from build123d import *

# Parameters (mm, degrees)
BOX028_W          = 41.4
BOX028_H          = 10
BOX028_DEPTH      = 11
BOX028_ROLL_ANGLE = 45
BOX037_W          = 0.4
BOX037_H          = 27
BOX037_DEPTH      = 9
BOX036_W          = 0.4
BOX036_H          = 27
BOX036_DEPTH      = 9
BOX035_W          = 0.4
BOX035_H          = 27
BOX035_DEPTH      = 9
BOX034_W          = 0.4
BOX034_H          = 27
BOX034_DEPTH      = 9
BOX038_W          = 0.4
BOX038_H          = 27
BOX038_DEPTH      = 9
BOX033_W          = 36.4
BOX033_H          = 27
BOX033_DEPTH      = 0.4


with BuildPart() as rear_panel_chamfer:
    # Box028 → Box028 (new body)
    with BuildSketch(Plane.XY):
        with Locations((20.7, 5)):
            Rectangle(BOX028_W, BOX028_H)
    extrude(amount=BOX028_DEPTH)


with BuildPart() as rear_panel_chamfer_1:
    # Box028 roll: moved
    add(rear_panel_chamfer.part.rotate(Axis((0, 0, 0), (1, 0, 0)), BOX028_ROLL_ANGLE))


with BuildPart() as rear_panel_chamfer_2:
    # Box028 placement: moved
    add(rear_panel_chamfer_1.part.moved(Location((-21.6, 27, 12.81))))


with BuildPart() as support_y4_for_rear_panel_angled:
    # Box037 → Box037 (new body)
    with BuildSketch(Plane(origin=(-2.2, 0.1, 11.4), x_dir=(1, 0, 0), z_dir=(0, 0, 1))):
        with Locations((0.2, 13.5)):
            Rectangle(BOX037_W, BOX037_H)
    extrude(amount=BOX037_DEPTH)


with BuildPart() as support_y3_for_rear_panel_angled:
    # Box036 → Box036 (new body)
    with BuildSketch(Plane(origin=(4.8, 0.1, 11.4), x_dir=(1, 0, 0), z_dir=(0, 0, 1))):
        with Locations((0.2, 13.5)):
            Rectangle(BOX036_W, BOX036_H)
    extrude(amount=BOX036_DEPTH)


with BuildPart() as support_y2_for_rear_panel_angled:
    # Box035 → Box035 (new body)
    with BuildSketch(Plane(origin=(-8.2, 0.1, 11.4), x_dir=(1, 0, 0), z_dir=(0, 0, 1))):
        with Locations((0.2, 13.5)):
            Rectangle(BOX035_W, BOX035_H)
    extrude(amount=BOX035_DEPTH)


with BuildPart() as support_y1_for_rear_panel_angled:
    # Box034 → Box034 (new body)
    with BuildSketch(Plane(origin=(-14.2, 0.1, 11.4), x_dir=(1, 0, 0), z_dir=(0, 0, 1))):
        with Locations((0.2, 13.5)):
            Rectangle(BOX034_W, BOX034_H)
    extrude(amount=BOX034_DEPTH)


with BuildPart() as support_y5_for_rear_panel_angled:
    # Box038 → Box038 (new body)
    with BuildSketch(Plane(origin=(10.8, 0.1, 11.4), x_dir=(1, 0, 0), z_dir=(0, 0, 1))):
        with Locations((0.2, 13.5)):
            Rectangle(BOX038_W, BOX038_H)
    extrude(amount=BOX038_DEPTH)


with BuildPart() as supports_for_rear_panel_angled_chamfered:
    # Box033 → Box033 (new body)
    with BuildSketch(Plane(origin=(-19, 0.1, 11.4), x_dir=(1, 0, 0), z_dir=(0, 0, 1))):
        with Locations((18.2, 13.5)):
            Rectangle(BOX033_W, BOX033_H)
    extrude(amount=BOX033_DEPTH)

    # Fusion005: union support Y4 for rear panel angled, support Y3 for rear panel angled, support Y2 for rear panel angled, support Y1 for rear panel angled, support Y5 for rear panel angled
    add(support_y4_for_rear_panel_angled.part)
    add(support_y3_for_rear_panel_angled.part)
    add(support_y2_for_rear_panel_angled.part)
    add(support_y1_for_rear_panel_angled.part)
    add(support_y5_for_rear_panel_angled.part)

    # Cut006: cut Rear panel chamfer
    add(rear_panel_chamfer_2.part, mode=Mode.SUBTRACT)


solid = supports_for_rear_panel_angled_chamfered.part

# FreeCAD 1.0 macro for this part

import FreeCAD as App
import Part
import Sketcher

V = App.Vector


def add_polygon(sketch, points):
    """Adds a closed chain of lines whose ends are joined by coincident constraints."""
    first, n = sketch.GeometryCount, len(points)
    for a, b in zip(points, points[1:] + points[:1]):
        sketch.addGeometry(Part.LineSegment(App.Vector(*a, 0), App.Vector(*b, 0)), False)
    for i in range(n):
        sketch.addConstraint(Sketcher.Constraint("Coincident", first + i, 2, first + (i + 1) % n, 1))

doc = App.newDocument("Part")
params = doc.addObject("Spreadsheet::Sheet", "Params")
for row, (alias, value) in enumerate([
    ("sketch1_height", "10 mm"),
    ("sketch1_width", "41.4 mm"),
    ("pad1_length", "11 mm"),
    ("sketch2_height", "27 mm"),
    ("sketch2_width", "0.4 mm"),
    ("pad2_length", "9 mm"),
    ("sketch3_height", "27 mm"),
    ("sketch3_width", "0.4 mm"),
    ("pad3_length", "9 mm"),
    ("sketch4_height", "27 mm"),
    ("sketch4_width", "0.4 mm"),
    ("pad4_length", "9 mm"),
    ("sketch5_height", "27 mm"),
    ("sketch5_width", "0.4 mm"),
    ("pad5_length", "9 mm"),
    ("sketch6_height", "27 mm"),
    ("sketch6_width", "0.4 mm"),
    ("pad6_length", "9 mm"),
    ("sketch7_height", "27 mm"),
    ("sketch7_width", "36.4 mm"),
    ("pad7_length", "0.4 mm"),
], start=1):
    params.set(f"A{row}", alias)
    params.set(f"B{row}", "=" + value)
    params.setAlias(f"B{row}", alias)

body = doc.addObject("PartDesign::Body", "Body")

sketch1 = doc.addObject("Sketcher::SketchObject", "Sketch")
body.addObject(sketch1)
sketch1.AttachmentSupport = (doc.XY_Plane, [""])
sketch1.MapMode = "FlatFace"
add_polygon(sketch1, [(0, 10), (0, 0), (41, 0), (41, 10)])
sketch1.addConstraint([
    Sketcher.Constraint("Vertical", 0),
    Sketcher.Constraint("Horizontal", 1),
    Sketcher.Constraint("Vertical", 2),
    Sketcher.Constraint("Horizontal", 3),
    Sketcher.Constraint("Coincident", 0, 2, -1, 1),
    Sketcher.Constraint("DistanceY", 0, 2, 0, 1, 10.0),
    Sketcher.Constraint("DistanceX", 1, 1, 1, 2, 41.4),
])
sketch1.setExpression("Constraints[9]", "Params.sketch1_height")
sketch1.setExpression("Constraints[10]", "Params.sketch1_width")
pad1 = doc.addObject("PartDesign::Pad", "Pad")
body.addObject(pad1)
pad1.Profile = sketch1
pad1.setExpression("Length", "Params.pad1_length")
body2 = doc.addObject("PartDesign::Body", "Body001")
doc.recompute()

body.Placement = App.Placement(V(0, 0, 0), App.Rotation(V(1, 0, 0), 45))
boolean = doc.addObject("PartDesign::Boolean", "Boolean")
body2.addObject(boolean)
boolean.Type = "Fuse"
boolean.addObjects([body])
body3 = doc.addObject("PartDesign::Body", "Body002")
doc.recompute()

body2.Placement = App.Placement(V(-21.6, 27, 12.81), App.Rotation(V(0, 0, 1), 0))
boolean2 = doc.addObject("PartDesign::Boolean", "Boolean001")
body3.addObject(boolean2)
boolean2.Type = "Fuse"
boolean2.addObjects([body2])
body4 = doc.addObject("PartDesign::Body", "Body003")

sketch2 = doc.addObject("Sketcher::SketchObject", "Sketch001")
body4.addObject(sketch2)
sketch2.AttachmentSupport = (doc.getObject("XY_Plane003"), [""])
sketch2.MapMode = "FlatFace"
sketch2.AttachmentOffset = App.Placement(V(0, 0, 11.4), App.Rotation())
add_polygon(sketch2, [(-2.2, 27.1), (-2.2, 0.1), (-1.8, 0.1), (-1.8, 27.1)])
sketch2.addConstraint([
    Sketcher.Constraint("Vertical", 0),
    Sketcher.Constraint("Horizontal", 1),
    Sketcher.Constraint("Vertical", 2),
    Sketcher.Constraint("Horizontal", 3),
    Sketcher.Constraint("DistanceY", 0, 2, 0, 1, 27.0),
    Sketcher.Constraint("DistanceX", 1, 1, 1, 2, 0.4),
    Sketcher.Constraint("DistanceX", 0, 2, -1, 1, 2.2),
    Sketcher.Constraint("DistanceY", -1, 1, 0, 2, 0.1),
])
sketch2.setExpression("Constraints[8]", "Params.sketch2_height")
sketch2.setExpression("Constraints[9]", "Params.sketch2_width")
pad2 = doc.addObject("PartDesign::Pad", "Pad001")
body4.addObject(pad2)
pad2.Profile = sketch2
pad2.setExpression("Length", "Params.pad2_length")
body5 = doc.addObject("PartDesign::Body", "Body004")

sketch3 = doc.addObject("Sketcher::SketchObject", "Sketch002")
body5.addObject(sketch3)
sketch3.AttachmentSupport = (doc.getObject("XY_Plane004"), [""])
sketch3.MapMode = "FlatFace"
sketch3.AttachmentOffset = App.Placement(V(0, 0, 11.4), App.Rotation())
add_polygon(sketch3, [(4.8, 27.1), (4.8, 0.1), (5.2, 0.1), (5.2, 27.1)])
sketch3.addConstraint([
    Sketcher.Constraint("Vertical", 0),
    Sketcher.Constraint("Horizontal", 1),
    Sketcher.Constraint("Vertical", 2),
    Sketcher.Constraint("Horizontal", 3),
    Sketcher.Constraint("DistanceY", 0, 2, 0, 1, 27.0),
    Sketcher.Constraint("DistanceX", 1, 1, 1, 2, 0.4),
    Sketcher.Constraint("DistanceX", -1, 1, 0, 2, 4.8),
    Sketcher.Constraint("DistanceY", -1, 1, 0, 2, 0.1),
])
sketch3.setExpression("Constraints[8]", "Params.sketch3_height")
sketch3.setExpression("Constraints[9]", "Params.sketch3_width")
pad3 = doc.addObject("PartDesign::Pad", "Pad002")
body5.addObject(pad3)
pad3.Profile = sketch3
pad3.setExpression("Length", "Params.pad3_length")
body6 = doc.addObject("PartDesign::Body", "Body005")

sketch4 = doc.addObject("Sketcher::SketchObject", "Sketch003")
body6.addObject(sketch4)
sketch4.AttachmentSupport = (doc.getObject("XY_Plane005"), [""])
sketch4.MapMode = "FlatFace"
sketch4.AttachmentOffset = App.Placement(V(0, 0, 11.4), App.Rotation())
add_polygon(sketch4, [(-8.2, 27.1), (-8.2, 0.1), (-7.8, 0.1), (-7.8, 27.1)])
sketch4.addConstraint([
    Sketcher.Constraint("Vertical", 0),
    Sketcher.Constraint("Horizontal", 1),
    Sketcher.Constraint("Vertical", 2),
    Sketcher.Constraint("Horizontal", 3),
    Sketcher.Constraint("DistanceY", 0, 2, 0, 1, 27.0),
    Sketcher.Constraint("DistanceX", 1, 1, 1, 2, 0.4),
    Sketcher.Constraint("DistanceX", 0, 2, -1, 1, 8.2),
    Sketcher.Constraint("DistanceY", -1, 1, 0, 2, 0.1),
])
sketch4.setExpression("Constraints[8]", "Params.sketch4_height")
sketch4.setExpression("Constraints[9]", "Params.sketch4_width")
pad4 = doc.addObject("PartDesign::Pad", "Pad003")
body6.addObject(pad4)
pad4.Profile = sketch4
pad4.setExpression("Length", "Params.pad4_length")
body7 = doc.addObject("PartDesign::Body", "Body006")

sketch5 = doc.addObject("Sketcher::SketchObject", "Sketch004")
body7.addObject(sketch5)
sketch5.AttachmentSupport = (doc.getObject("XY_Plane006"), [""])
sketch5.MapMode = "FlatFace"
sketch5.AttachmentOffset = App.Placement(V(0, 0, 11.4), App.Rotation())
add_polygon(sketch5, [(-14.2, 27.1), (-14.2, 0.1), (-13.8, 0.1), (-13.8, 27.1)])
sketch5.addConstraint([
    Sketcher.Constraint("Vertical", 0),
    Sketcher.Constraint("Horizontal", 1),
    Sketcher.Constraint("Vertical", 2),
    Sketcher.Constraint("Horizontal", 3),
    Sketcher.Constraint("DistanceY", 0, 2, 0, 1, 27.0),
    Sketcher.Constraint("DistanceX", 1, 1, 1, 2, 0.4),
    Sketcher.Constraint("DistanceX", 0, 2, -1, 1, 14.2),
    Sketcher.Constraint("DistanceY", -1, 1, 0, 2, 0.1),
])
sketch5.setExpression("Constraints[8]", "Params.sketch5_height")
sketch5.setExpression("Constraints[9]", "Params.sketch5_width")
pad5 = doc.addObject("PartDesign::Pad", "Pad004")
body7.addObject(pad5)
pad5.Profile = sketch5
pad5.setExpression("Length", "Params.pad5_length")
body8 = doc.addObject("PartDesign::Body", "Body007")

sketch6 = doc.addObject("Sketcher::SketchObject", "Sketch005")
body8.addObject(sketch6)
sketch6.AttachmentSupport = (doc.getObject("XY_Plane007"), [""])
sketch6.MapMode = "FlatFace"
sketch6.AttachmentOffset = App.Placement(V(0, 0, 11.4), App.Rotation())
add_polygon(sketch6, [(10.8, 27.1), (10.8, 0.1), (11.2, 0.1), (11.2, 27.1)])
sketch6.addConstraint([
    Sketcher.Constraint("Vertical", 0),
    Sketcher.Constraint("Horizontal", 1),
    Sketcher.Constraint("Vertical", 2),
    Sketcher.Constraint("Horizontal", 3),
    Sketcher.Constraint("DistanceY", 0, 2, 0, 1, 27.0),
    Sketcher.Constraint("DistanceX", 1, 1, 1, 2, 0.4),
    Sketcher.Constraint("DistanceX", -1, 1, 0, 2, 10.8),
    Sketcher.Constraint("DistanceY", -1, 1, 0, 2, 0.1),
])
sketch6.setExpression("Constraints[8]", "Params.sketch6_height")
sketch6.setExpression("Constraints[9]", "Params.sketch6_width")
pad6 = doc.addObject("PartDesign::Pad", "Pad005")
body8.addObject(pad6)
pad6.Profile = sketch6
pad6.setExpression("Length", "Params.pad6_length")
body9 = doc.addObject("PartDesign::Body", "Body008")

sketch7 = doc.addObject("Sketcher::SketchObject", "Sketch006")
body9.addObject(sketch7)
sketch7.AttachmentSupport = (doc.getObject("XY_Plane008"), [""])
sketch7.MapMode = "FlatFace"
sketch7.AttachmentOffset = App.Placement(V(0, 0, 11.4), App.Rotation())
add_polygon(sketch7, [(-19, 27), (-19, 0), (17, 0), (17, 27)])
sketch7.addConstraint([
    Sketcher.Constraint("Vertical", 0),
    Sketcher.Constraint("Horizontal", 1),
    Sketcher.Constraint("Vertical", 2),
    Sketcher.Constraint("Horizontal", 3),
    Sketcher.Constraint("DistanceY", 0, 2, 0, 1, 27.0),
    Sketcher.Constraint("DistanceX", 1, 1, 1, 2, 36.4),
    Sketcher.Constraint("DistanceX", 0, 2, -1, 1, 19.0),
    Sketcher.Constraint("DistanceY", -1, 1, 0, 2, 0.1),
])
sketch7.setExpression("Constraints[8]", "Params.sketch7_height")
sketch7.setExpression("Constraints[9]", "Params.sketch7_width")
pad7 = doc.addObject("PartDesign::Pad", "Pad006")
body9.addObject(pad7)
pad7.Profile = sketch7
pad7.setExpression("Length", "Params.pad7_length")
doc.recompute()

boolean3 = doc.addObject("PartDesign::Boolean", "Boolean002")
body9.addObject(boolean3)
boolean3.Type = "Fuse"
boolean3.addObjects([body4])
doc.recompute()

boolean4 = doc.addObject("PartDesign::Boolean", "Boolean003")
body9.addObject(boolean4)
boolean4.Type = "Fuse"
boolean4.addObjects([body5])
doc.recompute()

boolean5 = doc.addObject("PartDesign::Boolean", "Boolean004")
body9.addObject(boolean5)
boolean5.Type = "Fuse"
boolean5.addObjects([body6])
doc.recompute()

boolean6 = doc.addObject("PartDesign::Boolean", "Boolean005")
body9.addObject(boolean6)
boolean6.Type = "Fuse"
boolean6.addObjects([body7])
doc.recompute()

boolean7 = doc.addObject("PartDesign::Boolean", "Boolean006")
body9.addObject(boolean7)
boolean7.Type = "Fuse"
boolean7.addObjects([body8])
doc.recompute()

boolean8 = doc.addObject("PartDesign::Boolean", "Boolean007")
body9.addObject(boolean8)
boolean8.Type = "Cut"
boolean8.addObjects([body3])

doc.recompute()
